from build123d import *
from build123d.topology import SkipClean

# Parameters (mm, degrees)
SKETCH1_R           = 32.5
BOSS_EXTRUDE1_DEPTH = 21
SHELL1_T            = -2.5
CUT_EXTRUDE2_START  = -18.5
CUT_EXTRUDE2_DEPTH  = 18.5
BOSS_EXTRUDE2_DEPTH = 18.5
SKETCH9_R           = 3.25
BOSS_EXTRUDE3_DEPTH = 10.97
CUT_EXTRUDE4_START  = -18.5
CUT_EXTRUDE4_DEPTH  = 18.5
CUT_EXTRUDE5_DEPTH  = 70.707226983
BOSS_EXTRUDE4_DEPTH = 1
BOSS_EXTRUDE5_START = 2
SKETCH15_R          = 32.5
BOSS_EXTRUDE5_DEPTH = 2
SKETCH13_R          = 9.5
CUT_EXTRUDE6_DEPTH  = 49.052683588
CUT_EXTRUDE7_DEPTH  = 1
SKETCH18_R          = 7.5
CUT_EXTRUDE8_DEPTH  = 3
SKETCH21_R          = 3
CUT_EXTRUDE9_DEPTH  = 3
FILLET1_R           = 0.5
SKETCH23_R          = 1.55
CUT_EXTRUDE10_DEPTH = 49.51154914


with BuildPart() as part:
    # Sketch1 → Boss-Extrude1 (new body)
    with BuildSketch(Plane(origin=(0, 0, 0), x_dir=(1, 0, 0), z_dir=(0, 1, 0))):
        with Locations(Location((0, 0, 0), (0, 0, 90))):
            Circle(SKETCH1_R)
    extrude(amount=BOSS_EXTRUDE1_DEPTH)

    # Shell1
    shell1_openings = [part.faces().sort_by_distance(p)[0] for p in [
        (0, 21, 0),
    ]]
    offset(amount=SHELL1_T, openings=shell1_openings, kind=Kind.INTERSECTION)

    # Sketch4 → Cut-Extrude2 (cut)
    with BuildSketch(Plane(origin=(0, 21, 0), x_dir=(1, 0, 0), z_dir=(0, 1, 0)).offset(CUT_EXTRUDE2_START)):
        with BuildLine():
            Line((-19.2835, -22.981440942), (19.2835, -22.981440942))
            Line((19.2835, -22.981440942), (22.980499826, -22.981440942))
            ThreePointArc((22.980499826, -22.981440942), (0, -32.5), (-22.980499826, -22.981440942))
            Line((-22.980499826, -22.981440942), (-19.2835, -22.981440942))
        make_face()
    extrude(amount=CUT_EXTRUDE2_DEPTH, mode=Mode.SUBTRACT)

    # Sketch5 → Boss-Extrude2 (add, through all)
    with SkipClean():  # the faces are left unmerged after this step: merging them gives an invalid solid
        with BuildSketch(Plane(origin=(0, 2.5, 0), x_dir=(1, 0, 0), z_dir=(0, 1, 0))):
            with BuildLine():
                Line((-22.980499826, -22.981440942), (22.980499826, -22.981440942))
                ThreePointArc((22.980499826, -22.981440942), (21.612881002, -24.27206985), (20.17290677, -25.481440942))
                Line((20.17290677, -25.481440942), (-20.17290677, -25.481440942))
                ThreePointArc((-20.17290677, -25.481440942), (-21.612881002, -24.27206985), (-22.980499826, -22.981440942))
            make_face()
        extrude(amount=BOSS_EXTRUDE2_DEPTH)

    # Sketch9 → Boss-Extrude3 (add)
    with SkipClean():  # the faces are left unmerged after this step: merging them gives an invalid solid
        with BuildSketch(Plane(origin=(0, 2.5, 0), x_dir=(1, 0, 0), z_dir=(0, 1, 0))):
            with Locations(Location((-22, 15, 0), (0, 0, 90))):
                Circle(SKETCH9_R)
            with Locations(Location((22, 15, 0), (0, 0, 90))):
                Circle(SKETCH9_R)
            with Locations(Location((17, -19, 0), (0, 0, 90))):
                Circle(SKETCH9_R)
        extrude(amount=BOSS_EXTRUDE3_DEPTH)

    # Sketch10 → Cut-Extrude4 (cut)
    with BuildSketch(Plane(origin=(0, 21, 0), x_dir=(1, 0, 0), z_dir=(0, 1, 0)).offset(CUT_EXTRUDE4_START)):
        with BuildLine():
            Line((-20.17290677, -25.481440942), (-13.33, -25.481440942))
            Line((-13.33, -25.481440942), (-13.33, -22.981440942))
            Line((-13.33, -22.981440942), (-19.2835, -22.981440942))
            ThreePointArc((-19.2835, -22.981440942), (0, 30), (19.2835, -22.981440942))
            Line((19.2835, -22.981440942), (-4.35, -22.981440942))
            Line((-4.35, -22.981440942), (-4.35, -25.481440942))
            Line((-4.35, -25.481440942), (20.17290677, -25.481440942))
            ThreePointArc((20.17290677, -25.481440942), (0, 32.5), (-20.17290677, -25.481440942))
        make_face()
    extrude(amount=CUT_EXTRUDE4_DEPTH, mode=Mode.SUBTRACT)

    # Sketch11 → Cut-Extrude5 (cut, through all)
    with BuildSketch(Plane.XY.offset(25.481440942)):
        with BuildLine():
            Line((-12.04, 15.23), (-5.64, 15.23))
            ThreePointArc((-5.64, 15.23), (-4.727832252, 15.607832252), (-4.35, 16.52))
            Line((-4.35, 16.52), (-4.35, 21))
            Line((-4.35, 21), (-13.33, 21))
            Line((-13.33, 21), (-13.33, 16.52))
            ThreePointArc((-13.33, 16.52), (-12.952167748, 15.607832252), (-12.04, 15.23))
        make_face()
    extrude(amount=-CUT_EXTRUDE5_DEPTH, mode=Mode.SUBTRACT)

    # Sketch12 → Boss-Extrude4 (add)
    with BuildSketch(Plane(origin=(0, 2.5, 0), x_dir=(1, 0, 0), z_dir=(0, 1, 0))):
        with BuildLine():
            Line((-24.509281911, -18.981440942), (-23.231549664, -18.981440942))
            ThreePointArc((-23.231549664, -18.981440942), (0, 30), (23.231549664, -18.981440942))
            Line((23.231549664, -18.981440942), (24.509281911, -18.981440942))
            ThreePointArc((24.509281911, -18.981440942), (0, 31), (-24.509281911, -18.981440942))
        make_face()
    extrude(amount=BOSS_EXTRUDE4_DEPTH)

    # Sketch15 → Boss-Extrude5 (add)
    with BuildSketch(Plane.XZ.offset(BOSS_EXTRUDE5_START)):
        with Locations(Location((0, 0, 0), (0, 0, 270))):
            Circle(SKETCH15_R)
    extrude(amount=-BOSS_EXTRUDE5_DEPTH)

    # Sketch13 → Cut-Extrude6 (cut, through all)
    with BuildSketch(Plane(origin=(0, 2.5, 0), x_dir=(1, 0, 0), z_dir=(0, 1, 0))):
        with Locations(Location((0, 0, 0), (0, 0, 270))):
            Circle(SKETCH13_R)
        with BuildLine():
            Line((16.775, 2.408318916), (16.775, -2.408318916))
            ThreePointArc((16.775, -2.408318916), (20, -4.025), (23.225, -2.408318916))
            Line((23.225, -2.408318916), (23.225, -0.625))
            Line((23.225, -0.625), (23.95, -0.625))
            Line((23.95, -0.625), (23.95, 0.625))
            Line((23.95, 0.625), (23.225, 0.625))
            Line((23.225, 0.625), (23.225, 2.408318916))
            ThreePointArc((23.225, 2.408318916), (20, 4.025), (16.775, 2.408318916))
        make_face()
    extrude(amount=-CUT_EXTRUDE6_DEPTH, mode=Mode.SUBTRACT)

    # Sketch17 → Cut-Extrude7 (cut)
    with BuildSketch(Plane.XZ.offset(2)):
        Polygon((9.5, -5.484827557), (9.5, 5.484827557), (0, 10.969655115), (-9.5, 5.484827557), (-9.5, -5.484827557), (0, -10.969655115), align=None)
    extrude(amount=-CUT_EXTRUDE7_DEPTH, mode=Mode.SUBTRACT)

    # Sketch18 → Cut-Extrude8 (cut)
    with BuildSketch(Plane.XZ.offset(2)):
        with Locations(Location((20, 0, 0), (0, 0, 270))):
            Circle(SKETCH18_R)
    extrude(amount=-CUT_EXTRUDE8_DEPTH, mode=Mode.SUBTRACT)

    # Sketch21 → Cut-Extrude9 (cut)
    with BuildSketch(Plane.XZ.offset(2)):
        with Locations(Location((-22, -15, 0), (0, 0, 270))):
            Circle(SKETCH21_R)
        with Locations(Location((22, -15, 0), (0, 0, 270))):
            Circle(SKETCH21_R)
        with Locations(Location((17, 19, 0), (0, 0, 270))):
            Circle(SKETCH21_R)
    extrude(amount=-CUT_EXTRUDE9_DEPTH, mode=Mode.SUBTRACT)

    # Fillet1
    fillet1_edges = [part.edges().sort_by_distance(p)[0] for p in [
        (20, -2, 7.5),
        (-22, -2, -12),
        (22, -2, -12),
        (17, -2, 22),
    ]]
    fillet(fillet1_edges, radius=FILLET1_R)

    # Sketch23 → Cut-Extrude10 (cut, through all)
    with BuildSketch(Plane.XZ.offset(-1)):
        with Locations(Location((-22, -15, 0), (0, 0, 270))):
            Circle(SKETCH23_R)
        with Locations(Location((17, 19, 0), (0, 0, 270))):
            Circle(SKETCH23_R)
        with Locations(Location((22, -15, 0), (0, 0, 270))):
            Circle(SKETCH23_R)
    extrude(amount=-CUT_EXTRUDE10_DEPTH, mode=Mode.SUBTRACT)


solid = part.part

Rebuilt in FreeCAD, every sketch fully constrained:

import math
import FreeCAD as App
import Part
import Sketcher

V = App.Vector
Q = App.Units.Quantity


def edges_at(feature, points):
    """Names of the edges that pass closest to the given points."""
    edges = feature.Shape.Edges
    near = lambda p: min(range(len(edges)), key=lambda i: edges[i].distToShape(Part.Vertex(*p))[0])
    return sorted({f"Edge{near(p) + 1}" for p in points})


def faces_at(feature, points):
    """Names of the faces that lie closest to the given points."""
    faces = feature.Shape.Faces
    near = lambda p: min(range(len(faces)), key=lambda i: faces[i].distToShape(Part.Vertex(*p))[0])
    return sorted({f"Face{near(p) + 1}" for p in points})

doc = App.newDocument("Part")
body = doc.addObject("PartDesign::Body", "Body")

# Sketch on XZ plane
sketch1 = body.newObject("Sketcher::SketchObject", "Sketch")
sketch1.AttachmentSupport = (doc.getObject("XZ_Plane"), [""])
sketch1.MapMode = "FlatFace"
sketch1.addGeometry(Part.Circle(V(0, 0, 0), V(0, 0, 1), 32), False)
sketch1.addConstraint([
    Sketcher.Constraint("Coincident", 0, 3, -1, 1),
    Sketcher.Constraint("Diameter", 0, Q("65 mm")),
])
pad1 = body.newObject("PartDesign::Pad", "Pad")
pad1.Profile = sketch1
pad1.Length = 21
pad1.Reversed = True
doc.recompute()

thickness = body.newObject("PartDesign::Thickness", "Thickness")
thickness.Base = (pad1, faces_at(pad1, [(0, 21, 0)]))
thickness.Value = 2.5
thickness.Reversed = True
thickness.Join = "Intersection"

# Sketch on XZ plane
sketch2 = body.newObject("Sketcher::SketchObject", "Sketch001")
sketch2.AttachmentSupport = (doc.getObject("XZ_Plane"), [""])
sketch2.MapMode = "FlatFace"
sketch2.AttachmentOffset = App.Placement(V(0, 0, -2.5), App.Rotation())
sketch2.addGeometry([
    Part.ArcOfCircle(Part.Circle(V(0, 0, 0), V(0, 0, 1), 33), math.radians(45), math.radians(135)),
    Part.LineSegment(V(23, 23, 0), V(-23, 23, 0)),
], False)
sketch2.addConstraint([
    Sketcher.Constraint("Coincident", 0, 1, 1, 1),
    Sketcher.Constraint("Coincident", 1, 2, 0, 2),
    Sketcher.Constraint("Horizontal", 1),
    Sketcher.Constraint("Coincident", 0, 3, -1, 1),
    Sketcher.Constraint("Radius", 0, Q("32.5 mm")),
    Sketcher.Constraint("DistanceX", 1, 2, 1, 1, Q("45.961 mm")),
])
pocket1 = body.newObject("PartDesign::Pocket", "Pocket")
pocket1.Profile = sketch2
pocket1.Length = 18.5

# Sketch on XZ plane
sketch3 = body.newObject("Sketcher::SketchObject", "Sketch002")
sketch3.AttachmentSupport = (doc.getObject("XZ_Plane"), [""])
sketch3.MapMode = "FlatFace"
sketch3.AttachmentOffset = App.Placement(V(0, 0, -2.5), App.Rotation())
sketch3.addGeometry([
    Part.LineSegment(V(23, 23, 0), V(-23, 23, 0)),
    Part.ArcOfCircle(Part.Circle(V(0, 0, 0), V(0, 0, 1), 32.5), math.radians(128.37), math.radians(135)),
    Part.LineSegment(V(-20.2, 25.5, 0), V(20.2, 25.5, 0)),
    Part.ArcOfCircle(Part.Circle(V(0, 0, 0), V(0, 0, 1), 32.5), math.radians(45), math.radians(51.63)),
], False)
sketch3.addConstraint([
    Sketcher.Constraint("Coincident", 0, 2, 1, 2),
    Sketcher.Constraint("Coincident", 1, 1, 2, 1),
    Sketcher.Constraint("Coincident", 2, 2, 3, 2),
    Sketcher.Constraint("Coincident", 3, 1, 0, 1),
    Sketcher.Constraint("Horizontal", 0),
    Sketcher.Constraint("Horizontal", 2),
    Sketcher.Constraint("Coincident", 1, 3, -1, 1),
    Sketcher.Constraint("Coincident", 3, 3, -1, 1),
    Sketcher.Constraint("Equal", 1, 3),
    Sketcher.Constraint("Radius", 1, Q("32.5 mm")),
    Sketcher.Constraint("DistanceY", 0, 2, 1, 1, Q("2.5 mm")),
    Sketcher.Constraint("DistanceX", 0, 2, 0, 1, Q("45.961 mm")),
])
pad2 = body.newObject("PartDesign::Pad", "Pad001")
pad2.Profile = sketch3
pad2.Length = 18.5
pad2.Reversed = True

# Sketch on XZ plane
sketch4 = body.newObject("Sketcher::SketchObject", "Sketch003")
sketch4.AttachmentSupport = (doc.getObject("XZ_Plane"), [""])
sketch4.MapMode = "FlatFace"
sketch4.AttachmentOffset = App.Placement(V(0, 0, -2.5), App.Rotation())
sketch4.addGeometry([
    Part.Circle(V(-22, -15, 0), V(0, 0, 1), 3.2),
    Part.Circle(V(22, -15, 0), V(0, 0, 1), 3.2),
    Part.Circle(V(17, 19, 0), V(0, 0, 1), 3.2),
], False)
sketch4.addConstraint([
    Sketcher.Constraint("Equal", 0, 1),
    Sketcher.Constraint("Equal", 1, 2),
    Sketcher.Constraint("Symmetric", 0, 3, 1, 3, -2),
    Sketcher.Constraint("Diameter", 0, Q("6.5 mm")),
    Sketcher.Constraint("DistanceX", 0, 3, -1, 1, Q("22 mm")),
    Sketcher.Constraint("DistanceY", 0, 3, -1, 1, Q("15 mm")),
    Sketcher.Constraint("DistanceX", -1, 1, 2, 3, Q("17 mm")),
    Sketcher.Constraint("DistanceY", -1, 1, 2, 3, Q("19 mm")),
])
pad3 = body.newObject("PartDesign::Pad", "Pad002")
pad3.Profile = sketch4
pad3.Length = 10.97
pad3.Reversed = True

# Sketch on XZ plane
sketch5 = body.newObject("Sketcher::SketchObject", "Sketch004")
sketch5.AttachmentSupport = (doc.getObject("XZ_Plane"), [""])
sketch5.MapMode = "FlatFace"
sketch5.AttachmentOffset = App.Placement(V(0, 0, -2.5), App.Rotation())
sketch5.addGeometry([
    Part.LineSegment(V(-20.2, 25.5, 0), V(-13.3, 25.5, 0)),  # 0
    Part.LineSegment(V(-13.3, 25.5, 0), V(-13.3, 23, 0)),  # 1
    Part.LineSegment(V(-13.3, 23, 0), V(-19.3, 23, 0)),  # 2
    Part.ArcOfCircle(Part.Circle(V(0, 0, 0), V(0, 0, 1), 30), math.radians(130), math.radians(410)),  # 3
    Part.LineSegment(V(19.3, 23, 0), V(-4.3, 23, 0)),  # 4
    Part.LineSegment(V(-4.3, 23, 0), V(-4.3, 25.5, 0)),  # 5
    Part.LineSegment(V(-4.3, 25.5, 0), V(20.2, 25.5, 0)),  # 6
    Part.ArcOfCircle(Part.Circle(V(0, 0, 0), V(0, 0, 1), 32.5), math.radians(128), math.radians(412)),  # 7
], False)
sketch5.addConstraint([
    Sketcher.Constraint("Coincident", 0, 2, 1, 1),
    Sketcher.Constraint("Coincident", 1, 2, 2, 1),
    Sketcher.Constraint("Coincident", 2, 2, 3, 1),
    Sketcher.Constraint("Coincident", 3, 2, 4, 1),
    Sketcher.Constraint("Coincident", 4, 2, 5, 1),
    Sketcher.Constraint("Coincident", 5, 2, 6, 1),
    Sketcher.Constraint("Coincident", 6, 2, 7, 2),
    Sketcher.Constraint("Coincident", 7, 1, 0, 1),
    Sketcher.Constraint("Horizontal", 0),
    Sketcher.Constraint("Vertical", 1),
    Sketcher.Constraint("Horizontal", 2),
    Sketcher.Constraint("Horizontal", 4),
    Sketcher.Constraint("Vertical", 5),
    Sketcher.Constraint("Horizontal", 6),
    Sketcher.Constraint("Coincident", 3, 3, -1, 1),
    Sketcher.Constraint("Coincident", 7, 3, -1, 1),
    Sketcher.Constraint("Horizontal", 2, 2, 3, 2),
    Sketcher.Constraint("Horizontal", 0, 2, 5, 2),
    Sketcher.Constraint("Radius", 3, Q("30 mm")),
    Sketcher.Constraint("Radius", 7, Q("32.5 mm")),
    Sketcher.Constraint("DistanceY", 1, 2, 1, 1, Q("2.5 mm")),
    Sketcher.Constraint("DistanceX", 0, 2, -1, 1, Q("13.33 mm")),
    Sketcher.Constraint("DistanceX", 4, 2, -1, 1, Q("4.35 mm")),
    Sketcher.Constraint("DistanceX", 2, 2, 2, 1, Q("5.9535 mm")),
])
pocket2 = body.newObject("PartDesign::Pocket", "Pocket001")
pocket2.Profile = sketch5
pocket2.Length = 18.5

# Sketch on XY plane
sketch6 = body.newObject("Sketcher::SketchObject", "Sketch005")
sketch6.AttachmentSupport = (doc.getObject("XY_Plane"), [""])
sketch6.MapMode = "FlatFace"
sketch6.AttachmentOffset = App.Placement(V(0, 0, 25.481441), App.Rotation())
sketch6.addGeometry([
    Part.LineSegment(V(-12, 15.2, 0), V(-5.6, 15.2, 0)),  # 0
    Part.ArcOfCircle(Part.Circle(V(-5.6, 16.5, 0), V(0, 0, 1), 1.3), math.radians(-90), math.radians(0)),  # 1
    Part.LineSegment(V(-4.3, 16.5, 0), V(-4.3, 21, 0)),  # 2
    Part.LineSegment(V(-4.3, 21, 0), V(-13.3, 21, 0)),  # 3
    Part.LineSegment(V(-13.3, 21, 0), V(-13.3, 16.5, 0)),  # 4
    Part.ArcOfCircle(Part.Circle(V(-12, 16.5, 0), V(0, 0, 1), 1.3), math.radians(180), math.radians(270)),  # 5
], False)
sketch6.addConstraint([
    Sketcher.Constraint("Tangent", 0, 2, 1, 1),
    Sketcher.Constraint("Tangent", 1, 2, 2, 1),
    Sketcher.Constraint("Coincident", 2, 2, 3, 1),
    Sketcher.Constraint("Coincident", 3, 2, 4, 1),
    Sketcher.Constraint("Tangent", 4, 2, 5, 1),
    Sketcher.Constraint("Tangent", 5, 2, 0, 1),
    Sketcher.Constraint("Horizontal", 0),
    Sketcher.Constraint("Vertical", 2),
    Sketcher.Constraint("Horizontal", 3),
    Sketcher.Constraint("Vertical", 4),
    Sketcher.Constraint("Equal", 1, 5),
    Sketcher.Constraint("Radius", 1, Q("1.29 mm")),
    Sketcher.Constraint("DistanceX", 0, 1, 0, 2, Q("6.4 mm")),
    Sketcher.Constraint("DistanceY", -1, 1, 2, 2, Q("21 mm")),
    Sketcher.Constraint("DistanceY", 2, 1, 2, 2, Q("4.48 mm")),
    Sketcher.Constraint("DistanceX", 1, 3, -1, 1, Q("5.64 mm")),
])
pocket3 = body.newObject("PartDesign::Pocket", "Pocket002")
pocket3.Profile = sketch6
pocket3.Type = "ThroughAll"

# Sketch on XZ plane
sketch7 = body.newObject("Sketcher::SketchObject", "Sketch006")
sketch7.AttachmentSupport = (doc.getObject("XZ_Plane"), [""])
sketch7.MapMode = "FlatFace"
sketch7.AttachmentOffset = App.Placement(V(0, 0, -2.5), App.Rotation())
sketch7.addGeometry([
    Part.LineSegment(V(-24.5, 19, 0), V(-23.2, 19, 0)),
    Part.ArcOfCircle(Part.Circle(V(0, 0, 0), V(0, 0, 1), 30), math.radians(141), math.radians(399)),
    Part.LineSegment(V(23.2, 19, 0), V(24.5, 19, 0)),
    Part.ArcOfCircle(Part.Circle(V(0, 0, 0), V(0, 0, 1), 31), math.radians(142), math.radians(398)),
], False)
sketch7.addConstraint([
    Sketcher.Constraint("Coincident", 0, 2, 1, 1),
    Sketcher.Constraint("Coincident", 1, 2, 2, 1),
    Sketcher.Constraint("Coincident", 2, 2, 3, 2),
    Sketcher.Constraint("Coincident", 3, 1, 0, 1),
    Sketcher.Constraint("Horizontal", 0),
    Sketcher.Constraint("Horizontal", 2),
    Sketcher.Constraint("Coincident", 1, 3, -1, 1),
    Sketcher.Constraint("Coincident", 3, 3, -1, 1),
    Sketcher.Constraint("Horizontal", 0, 2, 1, 2),
    Sketcher.Constraint("Radius", 1, Q("30 mm")),
    Sketcher.Constraint("Radius", 3, Q("31 mm")),
    Sketcher.Constraint("DistanceX", 0, 2, 1, 2, Q("46.463099 mm")),
])
pad4 = body.newObject("PartDesign::Pad", "Pad003")
pad4.Profile = sketch7
pad4.Length = 1
pad4.Reversed = True

# Sketch on XZ plane
sketch8 = body.newObject("Sketcher::SketchObject", "Sketch007")
sketch8.AttachmentSupport = (doc.getObject("XZ_Plane"), [""])
sketch8.MapMode = "FlatFace"
sketch8.AttachmentOffset = App.Placement(V(0, 0, 2), App.Rotation())
sketch8.addGeometry(Part.Circle(V(0, 0, 0), V(0, 0, 1), 32), False)
sketch8.addConstraint([
    Sketcher.Constraint("Coincident", 0, 3, -1, 1),
    Sketcher.Constraint("Diameter", 0, Q("65 mm")),
])
pad5 = body.newObject("PartDesign::Pad", "Pad004")
pad5.Profile = sketch8
pad5.Length = 2
pad5.Reversed = True

# Sketch on XZ plane
sketch9 = body.newObject("Sketcher::SketchObject", "Sketch008")
sketch9.AttachmentSupport = (doc.getObject("XZ_Plane"), [""])
sketch9.MapMode = "FlatFace"
sketch9.AttachmentOffset = App.Placement(V(0, 0, -2.5), App.Rotation())
sketch9.addGeometry([
    Part.Circle(V(0, 0, 0), V(0, 0, 1), 9.5),  # 0
    Part.LineSegment(V(16.8, -2.4, 0), V(16.8, 2.4, 0)),  # 1
    Part.ArcOfCircle(Part.Circle(V(20, 0, 0), V(0, 0, 1), 4), math.radians(37), math.radians(143)),  # 2
    Part.LineSegment(V(23.2, 2.4, 0), V(23.2, 0.6, 0)),  # 3
    Part.LineSegment(V(23.2, 0.6, 0), V(23.9, 0.6, 0)),  # 4
    Part.LineSegment(V(23.9, 0.6, 0), V(23.9, -0.6, 0)),  # 5
    Part.LineSegment(V(23.9, -0.6, 0), V(23.2, -0.6, 0)),  # 6
    Part.LineSegment(V(23.2, -0.6, 0), V(23.2, -2.4, 0)),  # 7
    Part.ArcOfCircle(Part.Circle(V(20, 0, 0), V(0, 0, 1), 4), math.radians(-143), math.radians(-37)),  # 8
], False)
sketch9.addConstraint([
    Sketcher.Constraint("Coincident", 1, 2, 2, 2),
    Sketcher.Constraint("Coincident", 2, 1, 3, 1),
    Sketcher.Constraint("Coincident", 3, 2, 4, 1),
    Sketcher.Constraint("Coincident", 4, 2, 5, 1),
    Sketcher.Constraint("Coincident", 5, 2, 6, 1),
    Sketcher.Constraint("Coincident", 6, 2, 7, 1),
    Sketcher.Constraint("Coincident", 7, 2, 8, 2),
    Sketcher.Constraint("Coincident", 8, 1, 1, 1),
    Sketcher.Constraint("Vertical", 1),
    Sketcher.Constraint("Vertical", 3),
    Sketcher.Constraint("Horizontal", 4),
    Sketcher.Constraint("Vertical", 5),
    Sketcher.Constraint("Horizontal", 6),
    Sketcher.Constraint("Vertical", 7),
    Sketcher.Constraint("Coincident", 0, 3, -1, 1),
    Sketcher.Constraint("Coincident", 8, 3, 2, 3),
    Sketcher.Constraint("Equal", 2, 8),
    Sketcher.Constraint("Symmetric", 3, 2, 6, 2, -1),
    Sketcher.Constraint("PointOnObject", 2, 3, -1),
    Sketcher.Constraint("Horizontal", 1, 2, 2, 1),
    Sketcher.Constraint("Diameter", 0, Q("19 mm")),
    Sketcher.Constraint("DistanceX", -1, 1, 2, 3, Q("20 mm")),
    Sketcher.Constraint("Radius", 2, Q("4.025 mm")),
    Sketcher.Constraint("DistanceY", 5, 2, 5, 1, Q("1.25 mm")),
    Sketcher.Constraint("DistanceX", 4, 1, 4, 2, Q("0.725 mm")),
    Sketcher.Constraint("DistanceX", -1, 1, 4, 2, Q("23.95 mm")),
])
pocket4 = body.newObject("PartDesign::Pocket", "Pocket003")
pocket4.Profile = sketch9
pocket4.Type = "ThroughAll"
pocket4.Reversed = True

# Sketch on XZ plane
sketch10 = body.newObject("Sketcher::SketchObject", "Sketch009")
sketch10.AttachmentSupport = (doc.getObject("XZ_Plane"), [""])
sketch10.MapMode = "FlatFace"
sketch10.AttachmentOffset = App.Placement(V(0, 0, 2), App.Rotation())
sketch10.addGeometry([
    Part.LineSegment(V(10, -5, 0), V(10, 5, 0)),  # 0
    Part.LineSegment(V(10, 5, 0), V(0, 11, 0)),  # 1
    Part.LineSegment(V(0, 11, 0), V(-10, 5, 0)),  # 2
    Part.LineSegment(V(-10, 5, 0), V(-10, -5, 0)),  # 3
    Part.LineSegment(V(-10, -5, 0), V(0, -11, 0)),  # 4
    Part.LineSegment(V(0, -11, 0), V(10, -5, 0)),  # 5
], False)
sketch10.addConstraint([
    Sketcher.Constraint("Coincident", 0, 2, 1, 1),
    Sketcher.Constraint("Coincident", 1, 2, 2, 1),
    Sketcher.Constraint("Coincident", 2, 2, 3, 1),
    Sketcher.Constraint("Coincident", 3, 2, 4, 1),
    Sketcher.Constraint("Coincident", 4, 2, 5, 1),
    Sketcher.Constraint("Coincident", 5, 2, 0, 1),
    Sketcher.Constraint("Vertical", 0),
    Sketcher.Constraint("Vertical", 3),
    Sketcher.Constraint("Symmetric", 0, 2, 3, 2, -1, 1),
    Sketcher.Constraint("Symmetric", 1, 2, 4, 2, -1, 1),
    Sketcher.Constraint("PointOnObject", 1, 2, -2),
    Sketcher.Constraint("Parallel", 2, 5),
    Sketcher.Constraint("Horizontal", 0, 2, 2, 2),
    Sketcher.Constraint("Angle", 1, Q("150 deg")),
    Sketcher.Constraint("DistanceX", 2, 2, 0, 2, Q("19 mm")),
    Sketcher.Constraint("DistanceY", 0, 1, 0, 2, Q("10.969655 mm")),
])
pocket5 = body.newObject("PartDesign::Pocket", "Pocket004")
pocket5.Profile = sketch10
pocket5.Length = 1

# Sketch on XZ plane
sketch11 = body.newObject("Sketcher::SketchObject", "Sketch010")
sketch11.AttachmentSupport = (doc.getObject("XZ_Plane"), [""])
sketch11.MapMode = "FlatFace"
sketch11.AttachmentOffset = App.Placement(V(0, 0, 2), App.Rotation())
sketch11.addGeometry(Part.Circle(V(20, 0, 0), V(0, 0, 1), 8), False)
sketch11.addConstraint([
    Sketcher.Constraint("PointOnObject", 0, 3, -1),
    Sketcher.Constraint("Diameter", 0, Q("15 mm")),
    Sketcher.Constraint("DistanceX", -1, 1, 0, 3, Q("20 mm")),
])
pocket6 = body.newObject("PartDesign::Pocket", "Pocket005")
pocket6.Profile = sketch11
pocket6.Length = 3

# Sketch on XZ plane
sketch12 = body.newObject("Sketcher::SketchObject", "Sketch011")
sketch12.AttachmentSupport = (doc.getObject("XZ_Plane"), [""])
sketch12.MapMode = "FlatFace"
sketch12.AttachmentOffset = App.Placement(V(0, 0, 2), App.Rotation())
sketch12.addGeometry([
    Part.Circle(V(-22, -15, 0), V(0, 0, 1), 3),
    Part.Circle(V(22, -15, 0), V(0, 0, 1), 3),
    Part.Circle(V(17, 19, 0), V(0, 0, 1), 3),
], False)
sketch12.addConstraint([
    Sketcher.Constraint("Equal", 0, 1),
    Sketcher.Constraint("Equal", 1, 2),
    Sketcher.Constraint("Symmetric", 0, 3, 1, 3, -2),
    Sketcher.Constraint("Diameter", 0, Q("6 mm")),
    Sketcher.Constraint("DistanceX", 0, 3, -1, 1, Q("22 mm")),
    Sketcher.Constraint("DistanceY", 0, 3, -1, 1, Q("15 mm")),
    Sketcher.Constraint("DistanceX", -1, 1, 2, 3, Q("17 mm")),
    Sketcher.Constraint("DistanceY", -1, 1, 2, 3, Q("19 mm")),
])
pocket7 = body.newObject("PartDesign::Pocket", "Pocket006")
pocket7.Profile = sketch12
pocket7.Length = 3
doc.recompute()

fillet = body.newObject("PartDesign::Fillet", "Fillet")
fillet.Base = (pocket7, edges_at(pocket7, [
    (20, -2, 7.5),
    (-22, -2, -12),
    (22, -2, -12),
    (17, -2, 22),
]))
fillet.Radius = 0.5

# Sketch on XZ plane
sketch13 = body.newObject("Sketcher::SketchObject", "Sketch012")
sketch13.AttachmentSupport = (doc.getObject("XZ_Plane"), [""])
sketch13.MapMode = "FlatFace"
sketch13.AttachmentOffset = App.Placement(V(0, 0, -1), App.Rotation())
sketch13.addGeometry([
    Part.Circle(V(-22, -15, 0), V(0, 0, 1), 1.6),
    Part.Circle(V(17, 19, 0), V(0, 0, 1), 1.6),
    Part.Circle(V(22, -15, 0), V(0, 0, 1), 1.6),
], False)
sketch13.addConstraint([
    Sketcher.Constraint("Equal", 0, 1),
    Sketcher.Constraint("Equal", 1, 2),
    Sketcher.Constraint("Symmetric", 0, 3, 2, 3, -2),
    Sketcher.Constraint("Diameter", 0, Q("3.1 mm")),
    Sketcher.Constraint("DistanceX", 0, 3, -1, 1, Q("22 mm")),
    Sketcher.Constraint("DistanceY", 0, 3, -1, 1, Q("15 mm")),
    Sketcher.Constraint("DistanceX", -1, 1, 1, 3, Q("17 mm")),
    Sketcher.Constraint("DistanceY", -1, 1, 1, 3, Q("19 mm")),
])
pocket8 = body.newObject("PartDesign::Pocket", "Pocket007")
pocket8.Profile = sketch13
pocket8.Type = "ThroughAll"

doc.recompute()
